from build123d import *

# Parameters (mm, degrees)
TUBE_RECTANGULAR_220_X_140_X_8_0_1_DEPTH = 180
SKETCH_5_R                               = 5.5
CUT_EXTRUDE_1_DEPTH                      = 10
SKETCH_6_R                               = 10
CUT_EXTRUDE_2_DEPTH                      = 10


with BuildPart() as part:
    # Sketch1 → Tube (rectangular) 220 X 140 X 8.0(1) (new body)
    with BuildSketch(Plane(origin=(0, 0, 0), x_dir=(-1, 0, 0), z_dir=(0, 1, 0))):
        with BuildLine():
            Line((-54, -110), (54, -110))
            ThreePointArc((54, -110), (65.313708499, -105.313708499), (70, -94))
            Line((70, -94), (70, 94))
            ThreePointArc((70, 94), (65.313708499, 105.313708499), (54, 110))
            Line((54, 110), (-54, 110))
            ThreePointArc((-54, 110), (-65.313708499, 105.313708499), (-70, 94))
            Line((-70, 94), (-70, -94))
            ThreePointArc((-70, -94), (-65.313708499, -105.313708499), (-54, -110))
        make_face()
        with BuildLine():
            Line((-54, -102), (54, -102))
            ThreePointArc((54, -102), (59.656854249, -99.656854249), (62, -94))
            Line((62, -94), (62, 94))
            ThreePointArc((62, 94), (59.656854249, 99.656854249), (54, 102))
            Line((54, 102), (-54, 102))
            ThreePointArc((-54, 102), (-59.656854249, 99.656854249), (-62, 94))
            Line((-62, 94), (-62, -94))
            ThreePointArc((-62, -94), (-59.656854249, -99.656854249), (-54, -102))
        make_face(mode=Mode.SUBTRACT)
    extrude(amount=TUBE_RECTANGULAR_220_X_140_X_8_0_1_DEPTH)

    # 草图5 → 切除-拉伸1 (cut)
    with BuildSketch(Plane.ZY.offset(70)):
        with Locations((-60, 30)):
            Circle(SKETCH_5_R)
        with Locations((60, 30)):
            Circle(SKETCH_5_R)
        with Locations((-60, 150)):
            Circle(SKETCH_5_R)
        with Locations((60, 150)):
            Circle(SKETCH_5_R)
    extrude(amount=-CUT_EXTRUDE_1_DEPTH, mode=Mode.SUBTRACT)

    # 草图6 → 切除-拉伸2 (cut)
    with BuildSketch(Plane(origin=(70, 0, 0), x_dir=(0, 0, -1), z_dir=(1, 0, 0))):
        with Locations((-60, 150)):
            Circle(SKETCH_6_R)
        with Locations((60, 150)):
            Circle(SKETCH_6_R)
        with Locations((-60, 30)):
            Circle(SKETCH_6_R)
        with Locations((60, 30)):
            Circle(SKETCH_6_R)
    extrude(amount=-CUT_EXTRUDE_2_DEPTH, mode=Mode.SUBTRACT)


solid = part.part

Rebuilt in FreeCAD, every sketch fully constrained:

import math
import FreeCAD as App
import Part
import Sketcher
from FreeCAD import Vector
Q = App.Units.Quantity

doc = App.newDocument("Part")
body = doc.addObject("PartDesign::Body", "Body")

sketch1 = body.newObject("Sketcher::SketchObject", "Sketch")
sketch1.AttachmentSupport = (doc.getObject("XZ_Plane"), [""])
sketch1.MapMode = "FlatFace"
sketch1.addGeometry([
    Part.LineSegment(Vector(54, -110, 0), Vector(-54, -110, 0)),
    Part.ArcOfCircle(Part.Circle(Vector(-54, -94, 0), Vector(0, 0, 1), 16), math.radians(180), math.radians(270)),
    Part.LineSegment(Vector(-70, -94, 0), Vector(-70, 94, 0)),
    Part.ArcOfCircle(Part.Circle(Vector(-54, 94, 0), Vector(0, 0, 1), 16), math.radians(90), math.radians(180)),
    Part.LineSegment(Vector(-54, 110, 0), Vector(54, 110, 0)),
    Part.ArcOfCircle(Part.Circle(Vector(54, 94, 0), Vector(0, 0, 1), 16), math.radians(0), math.radians(90)),
    Part.LineSegment(Vector(70, 94, 0), Vector(70, -94, 0)),
    Part.ArcOfCircle(Part.Circle(Vector(54, -94, 0), Vector(0, 0, 1), 16), math.radians(-90), math.radians(0)),
    Part.LineSegment(Vector(-54, -102, 0), Vector(54, -102, 0)),
    Part.ArcOfCircle(Part.Circle(Vector(54, -94, 0), Vector(0, 0, 1), 8), math.radians(-90), math.radians(0)),
    Part.LineSegment(Vector(62, -94, 0), Vector(62, 94, 0)),
    Part.ArcOfCircle(Part.Circle(Vector(54, 94, 0), Vector(0, 0, 1), 8), math.radians(0), math.radians(90)),
    Part.LineSegment(Vector(54, 102, 0), Vector(-54, 102, 0)),
    Part.ArcOfCircle(Part.Circle(Vector(-54, 94, 0), Vector(0, 0, 1), 8), math.radians(90), math.radians(180)),
    Part.LineSegment(Vector(-62, 94, 0), Vector(-62, -94, 0)),
    Part.ArcOfCircle(Part.Circle(Vector(-54, -94, 0), Vector(0, 0, 1), 8), math.radians(-180), math.radians(-90)),
], False)
sketch1.addConstraint([
    Sketcher.Constraint("Tangent", 0, 2, 1, 2),
    Sketcher.Constraint("Tangent", 1, 1, 2, 1),
    Sketcher.Constraint("Tangent", 2, 2, 3, 2),
    Sketcher.Constraint("Tangent", 3, 1, 4, 1),
    Sketcher.Constraint("Tangent", 4, 2, 5, 2),
    Sketcher.Constraint("Tangent", 5, 1, 6, 1),
    Sketcher.Constraint("Tangent", 6, 2, 7, 2),
    Sketcher.Constraint("Tangent", 7, 1, 0, 1),
    Sketcher.Constraint("Tangent", 8, 2, 9, 1),
    Sketcher.Constraint("Tangent", 9, 2, 10, 1),
    Sketcher.Constraint("Tangent", 10, 2, 11, 1),
    Sketcher.Constraint("Tangent", 11, 2, 12, 1),
    Sketcher.Constraint("Tangent", 12, 2, 13, 1),
    Sketcher.Constraint("Tangent", 13, 2, 14, 1),
    Sketcher.Constraint("Tangent", 14, 2, 15, 1),
    Sketcher.Constraint("Tangent", 15, 2, 8, 1),
    Sketcher.Constraint("Horizontal", 0),
    Sketcher.Constraint("Vertical", 2),
    Sketcher.Constraint("Horizontal", 4),
    Sketcher.Constraint("Vertical", 6),
    Sketcher.Constraint("Horizontal", 8),
    Sketcher.Constraint("Vertical", 10),
    Sketcher.Constraint("Horizontal", 12),
    Sketcher.Constraint("Vertical", 14),
    Sketcher.Constraint("Coincident", 9, 3, 7, 3),
    Sketcher.Constraint("Coincident", 11, 3, 5, 3),
    Sketcher.Constraint("Coincident", 13, 3, 3, 3),
    Sketcher.Constraint("Equal", 1, 3),
    Sketcher.Constraint("Equal", 3, 5),
    Sketcher.Constraint("Equal", 5, 7),
    Sketcher.Constraint("Equal", 13, 15),
    Sketcher.Constraint("Symmetric", 1, 3, 5, 3, -1, 1),
    Sketcher.Constraint("Radius", 1, Q("16 mm")),
    Sketcher.Constraint("Radius", 9, Q("8 mm")),
    Sketcher.Constraint("DistanceX", 0, 2, 0, 1, Q("108 mm")),
    Sketcher.Constraint("DistanceY", 2, 1, 2, 2, Q("188 mm")),
])
pad1 = body.newObject("PartDesign::Pad", "Pad")
pad1.Profile = sketch1
pad1.Length = 180
pad1.Reversed = True

sketch2 = body.newObject("Sketcher::SketchObject", "Sketch001")
sketch2.AttachmentSupport = (doc.getObject("YZ_Plane"), [""])
sketch2.MapMode = "FlatFace"
sketch2.AttachmentOffset = App.Placement(Vector(0, 0, -70), App.Rotation())
sketch2.addGeometry([
    Part.Circle(Vector(30, -60, 0), Vector(0, 0, 1), 5.5),
    Part.Circle(Vector(30, 60, 0), Vector(0, 0, 1), 5.5),
    Part.Circle(Vector(150, -60, 0), Vector(0, 0, 1), 5.5),
    Part.Circle(Vector(150, 60, 0), Vector(0, 0, 1), 5.5),
], False)
sketch2.addConstraint([
    Sketcher.Constraint("Equal", 0, 1),
    Sketcher.Constraint("Equal", 1, 2),
    Sketcher.Constraint("Equal", 2, 3),
    Sketcher.Constraint("Symmetric", 0, 3, 1, 3, -1),
    Sketcher.Constraint("Symmetric", 2, 3, 3, 3, -1),
    Sketcher.Constraint("Horizontal", 0, 3, 2, 3),
    Sketcher.Constraint("Diameter", 0, Q("11 mm")),
    Sketcher.Constraint("DistanceX", -1, 1, 0, 3, Q("30 mm")),
    Sketcher.Constraint("DistanceY", 0, 3, -1, 1, Q("60 mm")),
    Sketcher.Constraint("DistanceX", -1, 1, 2, 3, Q("150 mm")),
])
pocket1 = body.newObject("PartDesign::Pocket", "Pocket")
pocket1.Profile = sketch2
pocket1.Length = 10
pocket1.Reversed = True

sketch3 = body.newObject("Sketcher::SketchObject", "Sketch002")
sketch3.AttachmentSupport = (doc.getObject("YZ_Plane"), [""])
sketch3.MapMode = "FlatFace"
sketch3.AttachmentOffset = App.Placement(Vector(0, 0, 70), App.Rotation())
sketch3.addGeometry([
    Part.Circle(Vector(150, 60, 0), Vector(0, 0, 1), 10),
    Part.Circle(Vector(150, -60, 0), Vector(0, 0, 1), 10),
    Part.Circle(Vector(30, 60, 0), Vector(0, 0, 1), 10),
    Part.Circle(Vector(30, -60, 0), Vector(0, 0, 1), 10),
], False)
sketch3.addConstraint([
    Sketcher.Constraint("Equal", 0, 1),
    Sketcher.Constraint("Equal", 1, 2),
    Sketcher.Constraint("Equal", 2, 3),
    Sketcher.Constraint("Symmetric", 0, 3, 1, 3, -1),
    Sketcher.Constraint("Symmetric", 2, 3, 3, 3, -1),
    Sketcher.Constraint("Horizontal", 0, 3, 2, 3),
    Sketcher.Constraint("Diameter", 0, Q("20 mm")),
    Sketcher.Constraint("DistanceX", -1, 1, 0, 3, Q("150 mm")),
    Sketcher.Constraint("DistanceY", -1, 1, 0, 3, Q("60 mm")),
    Sketcher.Constraint("DistanceX", -1, 1, 2, 3, Q("30 mm")),
])
pocket2 = body.newObject("PartDesign::Pocket", "Pocket001")
pocket2.Profile = sketch3
pocket2.Length = 10

doc.recompute()
